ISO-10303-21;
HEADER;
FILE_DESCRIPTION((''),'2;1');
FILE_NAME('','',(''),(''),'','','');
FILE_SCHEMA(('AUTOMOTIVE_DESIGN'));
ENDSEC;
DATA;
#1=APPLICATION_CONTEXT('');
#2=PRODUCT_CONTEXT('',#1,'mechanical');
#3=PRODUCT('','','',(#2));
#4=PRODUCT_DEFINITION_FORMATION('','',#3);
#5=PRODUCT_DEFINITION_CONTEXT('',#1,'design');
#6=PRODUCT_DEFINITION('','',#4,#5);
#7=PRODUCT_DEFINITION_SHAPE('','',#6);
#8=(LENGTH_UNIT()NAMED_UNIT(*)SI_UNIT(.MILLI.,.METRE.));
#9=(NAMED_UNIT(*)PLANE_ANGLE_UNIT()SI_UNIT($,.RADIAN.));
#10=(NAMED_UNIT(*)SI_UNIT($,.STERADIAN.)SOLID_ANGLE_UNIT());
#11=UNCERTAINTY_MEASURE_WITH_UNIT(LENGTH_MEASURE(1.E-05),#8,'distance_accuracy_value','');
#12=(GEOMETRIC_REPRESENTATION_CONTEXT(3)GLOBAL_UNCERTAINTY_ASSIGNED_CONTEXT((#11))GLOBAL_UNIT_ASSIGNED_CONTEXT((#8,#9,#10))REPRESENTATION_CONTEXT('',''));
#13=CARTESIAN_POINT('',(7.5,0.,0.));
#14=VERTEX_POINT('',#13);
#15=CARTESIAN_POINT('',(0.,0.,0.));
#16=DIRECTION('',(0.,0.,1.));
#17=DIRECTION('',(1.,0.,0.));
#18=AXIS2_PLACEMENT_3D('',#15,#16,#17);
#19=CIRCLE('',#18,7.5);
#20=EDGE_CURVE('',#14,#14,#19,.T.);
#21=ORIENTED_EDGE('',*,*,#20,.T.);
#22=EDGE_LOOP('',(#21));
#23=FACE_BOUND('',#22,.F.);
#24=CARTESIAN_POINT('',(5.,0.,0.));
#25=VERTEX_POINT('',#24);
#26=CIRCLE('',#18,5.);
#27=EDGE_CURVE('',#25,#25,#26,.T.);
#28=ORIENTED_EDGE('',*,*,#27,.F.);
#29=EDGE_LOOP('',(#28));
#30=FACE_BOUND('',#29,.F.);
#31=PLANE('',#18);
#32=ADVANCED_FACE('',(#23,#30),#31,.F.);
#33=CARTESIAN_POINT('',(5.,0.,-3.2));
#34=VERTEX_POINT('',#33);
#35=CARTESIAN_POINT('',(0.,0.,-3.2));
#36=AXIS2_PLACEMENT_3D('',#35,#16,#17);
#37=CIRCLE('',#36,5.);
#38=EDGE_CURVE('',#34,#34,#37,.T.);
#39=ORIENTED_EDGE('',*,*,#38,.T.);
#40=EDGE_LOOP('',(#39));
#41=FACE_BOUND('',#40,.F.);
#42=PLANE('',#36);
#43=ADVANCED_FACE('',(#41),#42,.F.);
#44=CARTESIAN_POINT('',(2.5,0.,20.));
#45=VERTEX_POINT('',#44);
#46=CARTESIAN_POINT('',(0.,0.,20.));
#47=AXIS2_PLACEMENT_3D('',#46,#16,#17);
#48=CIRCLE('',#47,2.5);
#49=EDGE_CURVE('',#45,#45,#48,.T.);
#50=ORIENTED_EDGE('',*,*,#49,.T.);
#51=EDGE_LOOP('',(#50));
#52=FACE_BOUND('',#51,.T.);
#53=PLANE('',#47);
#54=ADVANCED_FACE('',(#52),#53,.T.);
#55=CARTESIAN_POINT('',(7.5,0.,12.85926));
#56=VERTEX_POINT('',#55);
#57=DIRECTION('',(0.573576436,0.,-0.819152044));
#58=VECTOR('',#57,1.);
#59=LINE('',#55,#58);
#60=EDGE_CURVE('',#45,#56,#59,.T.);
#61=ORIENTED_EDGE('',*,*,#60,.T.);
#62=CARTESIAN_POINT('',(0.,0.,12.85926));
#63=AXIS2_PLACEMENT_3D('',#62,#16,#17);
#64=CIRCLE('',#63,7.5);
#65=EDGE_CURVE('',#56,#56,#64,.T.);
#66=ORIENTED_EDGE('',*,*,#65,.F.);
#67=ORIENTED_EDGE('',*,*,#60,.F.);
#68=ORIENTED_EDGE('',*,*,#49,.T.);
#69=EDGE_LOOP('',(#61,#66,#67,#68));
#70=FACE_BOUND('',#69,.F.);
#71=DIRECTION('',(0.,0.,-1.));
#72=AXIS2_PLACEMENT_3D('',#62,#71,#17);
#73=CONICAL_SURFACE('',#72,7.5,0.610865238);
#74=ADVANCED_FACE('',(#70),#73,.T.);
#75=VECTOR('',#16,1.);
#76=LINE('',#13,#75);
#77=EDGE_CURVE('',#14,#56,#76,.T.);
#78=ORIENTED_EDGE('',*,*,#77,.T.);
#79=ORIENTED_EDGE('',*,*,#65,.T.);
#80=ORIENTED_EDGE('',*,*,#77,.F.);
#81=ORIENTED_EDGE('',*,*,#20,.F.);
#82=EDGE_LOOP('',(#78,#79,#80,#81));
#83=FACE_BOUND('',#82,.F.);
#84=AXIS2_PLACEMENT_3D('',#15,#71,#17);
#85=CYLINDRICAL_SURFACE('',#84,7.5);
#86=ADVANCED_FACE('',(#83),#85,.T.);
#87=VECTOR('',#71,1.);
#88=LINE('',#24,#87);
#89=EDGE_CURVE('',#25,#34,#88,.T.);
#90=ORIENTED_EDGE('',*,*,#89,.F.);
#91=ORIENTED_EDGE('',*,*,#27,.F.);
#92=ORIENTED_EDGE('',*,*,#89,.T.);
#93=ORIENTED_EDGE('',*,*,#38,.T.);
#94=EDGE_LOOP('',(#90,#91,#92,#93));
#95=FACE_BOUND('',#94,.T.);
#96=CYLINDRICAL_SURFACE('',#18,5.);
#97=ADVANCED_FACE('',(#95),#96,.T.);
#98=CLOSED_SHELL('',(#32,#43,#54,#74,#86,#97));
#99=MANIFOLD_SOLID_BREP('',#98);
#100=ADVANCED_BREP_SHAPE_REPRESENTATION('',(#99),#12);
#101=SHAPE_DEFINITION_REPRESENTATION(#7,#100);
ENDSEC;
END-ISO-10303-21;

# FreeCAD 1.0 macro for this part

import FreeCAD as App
import Part
import Sketcher
from FreeCAD import Vector
Q = App.Units.Quantity


def edges_at(feature, points):
    """Names of the edges that pass closest to the given points."""
    edges = feature.Shape.Edges
    near = lambda p: min(range(len(edges)), key=lambda i: edges[i].distToShape(Part.Vertex(*p))[0])
    return sorted({f"Edge{near(p) + 1}" for p in points})

doc = App.newDocument("Part")
body = doc.addObject("PartDesign::Body", "Body")

sketch1 = doc.addObject("Sketcher::SketchObject", "Sketch")
body.addObject(sketch1)
sketch1.AttachmentSupport = (doc.XY_Plane, [""])
sketch1.MapMode = "FlatFace"
sketch1.addGeometry(Part.Circle(Vector(0, 0, 0), Vector(0, 0, 1), 8), False)
sketch1.addConstraint(Sketcher.Constraint("Coincident", 0, 3, -1, 1))
sketch1.addConstraint(Sketcher.Constraint("Diameter", 0, Q("15 mm")))
pad1 = doc.addObject("PartDesign::Pad", "Pad")
body.addObject(pad1)
pad1.Profile = sketch1
pad1.Length = 20
doc.recompute()

chamfer = doc.addObject("PartDesign::Chamfer", "Chamfer")
body.addObject(chamfer)
chamfer.Base = (pad1, edges_at(pad1, [(-7.5, 0, 20)]))
chamfer.ChamferType = "Two distances"
chamfer.Size = 5
chamfer.Size2 = 7.14074
chamfer.FlipDirection = True

sketch2 = doc.addObject("Sketcher::SketchObject", "Sketch001")
body.addObject(sketch2)
sketch2.AttachmentSupport = (doc.XY_Plane, [""])
sketch2.MapMode = "FlatFace"
sketch2.addGeometry(Part.Circle(Vector(0, 0, 0), Vector(0, 0, 1), 5), False)
sketch2.addConstraint(Sketcher.Constraint("Coincident", 0, 3, -1, 1))
sketch2.addConstraint(Sketcher.Constraint("Diameter", 0, Q("10 mm")))
pad2 = doc.addObject("PartDesign::Pad", "Pad001")
body.addObject(pad2)
pad2.Profile = sketch2
pad2.Length = 3.2
pad2.Reversed = True

doc.recompute()
